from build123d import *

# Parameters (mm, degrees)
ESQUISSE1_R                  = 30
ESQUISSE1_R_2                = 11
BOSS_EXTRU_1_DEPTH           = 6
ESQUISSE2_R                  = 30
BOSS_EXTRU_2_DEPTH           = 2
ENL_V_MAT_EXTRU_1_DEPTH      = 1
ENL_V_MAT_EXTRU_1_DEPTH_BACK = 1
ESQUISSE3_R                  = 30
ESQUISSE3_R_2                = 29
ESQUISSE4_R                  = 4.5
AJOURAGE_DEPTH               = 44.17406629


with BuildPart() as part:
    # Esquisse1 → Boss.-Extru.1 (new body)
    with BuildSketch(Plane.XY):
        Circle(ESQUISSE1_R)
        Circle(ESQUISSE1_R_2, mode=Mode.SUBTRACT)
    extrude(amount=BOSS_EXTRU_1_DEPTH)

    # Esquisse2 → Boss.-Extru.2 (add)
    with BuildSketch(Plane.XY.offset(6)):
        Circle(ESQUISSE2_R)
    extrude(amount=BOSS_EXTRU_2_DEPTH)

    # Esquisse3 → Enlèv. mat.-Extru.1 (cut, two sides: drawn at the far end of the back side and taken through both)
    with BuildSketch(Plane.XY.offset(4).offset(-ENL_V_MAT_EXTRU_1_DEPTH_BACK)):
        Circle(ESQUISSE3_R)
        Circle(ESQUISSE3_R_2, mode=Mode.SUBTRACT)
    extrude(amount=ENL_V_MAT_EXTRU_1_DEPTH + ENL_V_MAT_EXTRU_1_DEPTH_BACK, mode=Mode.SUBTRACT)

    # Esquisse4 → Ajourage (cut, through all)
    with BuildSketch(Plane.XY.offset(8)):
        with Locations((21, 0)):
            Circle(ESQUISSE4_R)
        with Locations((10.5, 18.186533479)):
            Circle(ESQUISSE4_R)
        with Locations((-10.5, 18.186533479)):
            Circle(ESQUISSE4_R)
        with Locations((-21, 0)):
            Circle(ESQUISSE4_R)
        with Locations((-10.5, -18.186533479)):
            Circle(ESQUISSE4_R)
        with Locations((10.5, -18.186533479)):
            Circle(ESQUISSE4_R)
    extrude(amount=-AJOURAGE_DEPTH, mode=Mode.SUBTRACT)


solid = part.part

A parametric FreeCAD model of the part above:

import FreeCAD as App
import Part
import Sketcher

V = App.Vector
Q = App.Units.Quantity

doc = App.newDocument("Part")
body = doc.addObject("PartDesign::Body", "Body")

# Sketch on XY plane
sketch1 = doc.addObject("Sketcher::SketchObject", "Sketch")
body.addObject(sketch1)
sketch1.AttachmentSupport = (doc.XY_Plane, [""])
sketch1.MapMode = "FlatFace"
sketch1.addGeometry(Part.Circle(V(0, 0, 0), V(0, 0, 1), 30), False)
sketch1.addGeometry(Part.Circle(V(0, 0, 0), V(0, 0, 1), 11), False)
sketch1.addConstraint(Sketcher.Constraint("Coincident", 0, 3, -1, 1))
sketch1.addConstraint(Sketcher.Constraint("Coincident", 1, 3, -1, 1))
sketch1.addConstraint(Sketcher.Constraint("Diameter", 0, Q("60 mm")))
sketch1.addConstraint(Sketcher.Constraint("Diameter", 1, Q("22 mm")))
pad1 = doc.addObject("PartDesign::Pad", "Pad")
body.addObject(pad1)
pad1.Profile = sketch1
pad1.Length = 6

# Sketch on XY plane
sketch2 = doc.addObject("Sketcher::SketchObject", "Sketch001")
body.addObject(sketch2)
sketch2.AttachmentSupport = (doc.XY_Plane, [""])
sketch2.MapMode = "FlatFace"
sketch2.AttachmentOffset = App.Placement(V(0, 0, 6), App.Rotation())
sketch2.addGeometry(Part.Circle(V(0, 0, 0), V(0, 0, 1), 30), False)
sketch2.addConstraint(Sketcher.Constraint("Coincident", 0, 3, -1, 1))
sketch2.addConstraint(Sketcher.Constraint("Diameter", 0, Q("60 mm")))
pad2 = doc.addObject("PartDesign::Pad", "Pad001")
body.addObject(pad2)
pad2.Profile = sketch2
pad2.Length = 2

# Sketch on XY plane
sketch3 = doc.addObject("Sketcher::SketchObject", "Sketch002")
body.addObject(sketch3)
sketch3.AttachmentSupport = (doc.XY_Plane, [""])
sketch3.MapMode = "FlatFace"
sketch3.AttachmentOffset = App.Placement(V(0, 0, 4), App.Rotation())
sketch3.addGeometry(Part.Circle(V(0, 0, 0), V(0, 0, 1), 30), False)
sketch3.addGeometry(Part.Circle(V(0, 0, 0), V(0, 0, 1), 29), False)
sketch3.addConstraint(Sketcher.Constraint("Coincident", 0, 3, -1, 1))
sketch3.addConstraint(Sketcher.Constraint("Coincident", 1, 3, -1, 1))
sketch3.addConstraint(Sketcher.Constraint("Diameter", 0, Q("60 mm")))
sketch3.addConstraint(Sketcher.Constraint("Diameter", 1, Q("58 mm")))
pocket1 = doc.addObject("PartDesign::Pocket", "Pocket")
body.addObject(pocket1)
pocket1.Profile = sketch3
pocket1.Type = "TwoLengths"
pocket1.Length = 1
pocket1.Length2 = 1
pocket1.Reversed = True

# Sketch on XY plane
sketch4 = doc.addObject("Sketcher::SketchObject", "Sketch003")
body.addObject(sketch4)
sketch4.AttachmentSupport = (doc.XY_Plane, [""])
sketch4.MapMode = "FlatFace"
sketch4.AttachmentOffset = App.Placement(V(0, 0, 8), App.Rotation())
sketch4.addGeometry(Part.Circle(V(21, 0, 0), V(0, 0, 1), 4.5), False)
sketch4.addGeometry(Part.Circle(V(10.5, 18.2, 0), V(0, 0, 1), 4.5), False)
sketch4.addGeometry(Part.Circle(V(-10.5, 18.2, 0), V(0, 0, 1), 4.5), False)
sketch4.addGeometry(Part.Circle(V(-21, 0, 0), V(0, 0, 1), 4.5), False)
sketch4.addGeometry(Part.Circle(V(-10.5, -18.2, 0), V(0, 0, 1), 4.5), False)
sketch4.addGeometry(Part.Circle(V(10.5, -18.2, 0), V(0, 0, 1), 4.5), False)
sketch4.addConstraint(Sketcher.Constraint("Equal", 0, 1))
sketch4.addConstraint(Sketcher.Constraint("Equal", 1, 2))
sketch4.addConstraint(Sketcher.Constraint("Equal", 2, 3))
sketch4.addConstraint(Sketcher.Constraint("Equal", 3, 4))
sketch4.addConstraint(Sketcher.Constraint("Equal", 4, 5))
sketch4.addConstraint(Sketcher.Constraint("Symmetric", 0, 3, 3, 3, -1, 1))
sketch4.addConstraint(Sketcher.Constraint("Symmetric", 1, 3, 4, 3, -1, 1))
sketch4.addConstraint(Sketcher.Constraint("Symmetric", 2, 3, 5, 3, -1, 1))
sketch4.addConstraint(Sketcher.Constraint("Symmetric", 1, 3, 2, 3, -2))
sketch4.addConstraint(Sketcher.Constraint("PointOnObject", 0, 3, -1))
sketch4.addConstraint(Sketcher.Constraint("Diameter", 0, Q("9 mm")))
sketch4.addConstraint(Sketcher.Constraint("DistanceX", -1, 1, 0, 3, Q("21 mm")))
sketch4.addConstraint(Sketcher.Constraint("DistanceX", 2, 3, 1, 3, Q("21 mm")))
sketch4.addConstraint(Sketcher.Constraint("DistanceY", -1, 1, 1, 3, Q("18.186533 mm")))
pocket2 = doc.addObject("PartDesign::Pocket", "Pocket001")
body.addObject(pocket2)
pocket2.Profile = sketch4
pocket2.Type = "ThroughAll"

doc.recompute()
